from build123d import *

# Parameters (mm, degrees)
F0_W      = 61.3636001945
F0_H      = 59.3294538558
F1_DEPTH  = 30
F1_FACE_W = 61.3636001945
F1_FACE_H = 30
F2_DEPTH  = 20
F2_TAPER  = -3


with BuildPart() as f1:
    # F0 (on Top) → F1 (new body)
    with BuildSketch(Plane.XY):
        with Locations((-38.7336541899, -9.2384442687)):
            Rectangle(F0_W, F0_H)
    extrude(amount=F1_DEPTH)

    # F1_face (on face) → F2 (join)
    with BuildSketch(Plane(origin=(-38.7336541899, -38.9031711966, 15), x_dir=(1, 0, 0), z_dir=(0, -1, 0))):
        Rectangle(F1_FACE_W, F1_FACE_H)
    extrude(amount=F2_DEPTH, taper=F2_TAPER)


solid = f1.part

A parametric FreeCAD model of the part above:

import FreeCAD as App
import Part
import Sketcher

V = App.Vector


def add_polygon(sketch, points):
    """Adds a closed chain of lines whose ends are joined by coincident constraints."""
    first, n = sketch.GeometryCount, len(points)
    for a, b in zip(points, points[1:] + points[:1]):
        sketch.addGeometry(Part.LineSegment(App.Vector(*a, 0), App.Vector(*b, 0)), False)
    for i in range(n):
        sketch.addConstraint(Sketcher.Constraint("Coincident", first + i, 2, first + (i + 1) % n, 1))

doc = App.newDocument("Part")
body = doc.addObject("PartDesign::Body", "Body")

# Sketch on XY plane
sketch1 = body.newObject("Sketcher::SketchObject", "Sketch")
sketch1.AttachmentSupport = (doc.getObject("XY_Plane"), [""])
sketch1.MapMode = "FlatFace"
add_polygon(sketch1, [(-69, 20), (-69, -39), (-8, -39), (-8, 20)])  # lines 0-3
sketch1.addConstraint([
    Sketcher.Constraint("Vertical", 0),
    Sketcher.Constraint("Horizontal", 1),
    Sketcher.Constraint("Vertical", 2),
    Sketcher.Constraint("Horizontal", 3),
    Sketcher.Constraint("DistanceX", 1, 1, 1, 2, 61.3636),
    Sketcher.Constraint("DistanceY", 0, 2, 0, 1, 59.329454),
    Sketcher.Constraint("DistanceY", 0, 2, -1, 1, 38.903171),
    Sketcher.Constraint("DistanceX", 0, 2, -1, 1, 69.415454),
])
pad1 = body.newObject("PartDesign::Pad", "Pad")
pad1.Profile = sketch1
pad1.Length = 30

# Sketch on XZ plane
sketch2 = body.newObject("Sketcher::SketchObject", "Sketch001")
sketch2.AttachmentSupport = (doc.getObject("XZ_Plane"), [""])
sketch2.MapMode = "FlatFace"
sketch2.AttachmentOffset = App.Placement(V(0, 0, 38.903171), App.Rotation())
add_polygon(sketch2, [(-69, 30), (-69, 0), (-8, 0), (-8, 30)])  # lines 0-3
sketch2.addConstraint([
    Sketcher.Constraint("Vertical", 0),
    Sketcher.Constraint("Horizontal", 1),
    Sketcher.Constraint("Vertical", 2),
    Sketcher.Constraint("Horizontal", 3),
    Sketcher.Constraint("PointOnObject", 0, 2, -1),
    Sketcher.Constraint("DistanceY", 0, 2, 0, 1, 30.0),
    Sketcher.Constraint("DistanceX", 1, 1, 1, 2, 61.3636),
    Sketcher.Constraint("DistanceX", 0, 2, -1, 1, 69.415454),
])
pad2 = body.newObject("PartDesign::Pad", "Pad001")
pad2.Profile = sketch2
pad2.Length = 20
pad2.TaperAngle = 3

doc.recompute()
